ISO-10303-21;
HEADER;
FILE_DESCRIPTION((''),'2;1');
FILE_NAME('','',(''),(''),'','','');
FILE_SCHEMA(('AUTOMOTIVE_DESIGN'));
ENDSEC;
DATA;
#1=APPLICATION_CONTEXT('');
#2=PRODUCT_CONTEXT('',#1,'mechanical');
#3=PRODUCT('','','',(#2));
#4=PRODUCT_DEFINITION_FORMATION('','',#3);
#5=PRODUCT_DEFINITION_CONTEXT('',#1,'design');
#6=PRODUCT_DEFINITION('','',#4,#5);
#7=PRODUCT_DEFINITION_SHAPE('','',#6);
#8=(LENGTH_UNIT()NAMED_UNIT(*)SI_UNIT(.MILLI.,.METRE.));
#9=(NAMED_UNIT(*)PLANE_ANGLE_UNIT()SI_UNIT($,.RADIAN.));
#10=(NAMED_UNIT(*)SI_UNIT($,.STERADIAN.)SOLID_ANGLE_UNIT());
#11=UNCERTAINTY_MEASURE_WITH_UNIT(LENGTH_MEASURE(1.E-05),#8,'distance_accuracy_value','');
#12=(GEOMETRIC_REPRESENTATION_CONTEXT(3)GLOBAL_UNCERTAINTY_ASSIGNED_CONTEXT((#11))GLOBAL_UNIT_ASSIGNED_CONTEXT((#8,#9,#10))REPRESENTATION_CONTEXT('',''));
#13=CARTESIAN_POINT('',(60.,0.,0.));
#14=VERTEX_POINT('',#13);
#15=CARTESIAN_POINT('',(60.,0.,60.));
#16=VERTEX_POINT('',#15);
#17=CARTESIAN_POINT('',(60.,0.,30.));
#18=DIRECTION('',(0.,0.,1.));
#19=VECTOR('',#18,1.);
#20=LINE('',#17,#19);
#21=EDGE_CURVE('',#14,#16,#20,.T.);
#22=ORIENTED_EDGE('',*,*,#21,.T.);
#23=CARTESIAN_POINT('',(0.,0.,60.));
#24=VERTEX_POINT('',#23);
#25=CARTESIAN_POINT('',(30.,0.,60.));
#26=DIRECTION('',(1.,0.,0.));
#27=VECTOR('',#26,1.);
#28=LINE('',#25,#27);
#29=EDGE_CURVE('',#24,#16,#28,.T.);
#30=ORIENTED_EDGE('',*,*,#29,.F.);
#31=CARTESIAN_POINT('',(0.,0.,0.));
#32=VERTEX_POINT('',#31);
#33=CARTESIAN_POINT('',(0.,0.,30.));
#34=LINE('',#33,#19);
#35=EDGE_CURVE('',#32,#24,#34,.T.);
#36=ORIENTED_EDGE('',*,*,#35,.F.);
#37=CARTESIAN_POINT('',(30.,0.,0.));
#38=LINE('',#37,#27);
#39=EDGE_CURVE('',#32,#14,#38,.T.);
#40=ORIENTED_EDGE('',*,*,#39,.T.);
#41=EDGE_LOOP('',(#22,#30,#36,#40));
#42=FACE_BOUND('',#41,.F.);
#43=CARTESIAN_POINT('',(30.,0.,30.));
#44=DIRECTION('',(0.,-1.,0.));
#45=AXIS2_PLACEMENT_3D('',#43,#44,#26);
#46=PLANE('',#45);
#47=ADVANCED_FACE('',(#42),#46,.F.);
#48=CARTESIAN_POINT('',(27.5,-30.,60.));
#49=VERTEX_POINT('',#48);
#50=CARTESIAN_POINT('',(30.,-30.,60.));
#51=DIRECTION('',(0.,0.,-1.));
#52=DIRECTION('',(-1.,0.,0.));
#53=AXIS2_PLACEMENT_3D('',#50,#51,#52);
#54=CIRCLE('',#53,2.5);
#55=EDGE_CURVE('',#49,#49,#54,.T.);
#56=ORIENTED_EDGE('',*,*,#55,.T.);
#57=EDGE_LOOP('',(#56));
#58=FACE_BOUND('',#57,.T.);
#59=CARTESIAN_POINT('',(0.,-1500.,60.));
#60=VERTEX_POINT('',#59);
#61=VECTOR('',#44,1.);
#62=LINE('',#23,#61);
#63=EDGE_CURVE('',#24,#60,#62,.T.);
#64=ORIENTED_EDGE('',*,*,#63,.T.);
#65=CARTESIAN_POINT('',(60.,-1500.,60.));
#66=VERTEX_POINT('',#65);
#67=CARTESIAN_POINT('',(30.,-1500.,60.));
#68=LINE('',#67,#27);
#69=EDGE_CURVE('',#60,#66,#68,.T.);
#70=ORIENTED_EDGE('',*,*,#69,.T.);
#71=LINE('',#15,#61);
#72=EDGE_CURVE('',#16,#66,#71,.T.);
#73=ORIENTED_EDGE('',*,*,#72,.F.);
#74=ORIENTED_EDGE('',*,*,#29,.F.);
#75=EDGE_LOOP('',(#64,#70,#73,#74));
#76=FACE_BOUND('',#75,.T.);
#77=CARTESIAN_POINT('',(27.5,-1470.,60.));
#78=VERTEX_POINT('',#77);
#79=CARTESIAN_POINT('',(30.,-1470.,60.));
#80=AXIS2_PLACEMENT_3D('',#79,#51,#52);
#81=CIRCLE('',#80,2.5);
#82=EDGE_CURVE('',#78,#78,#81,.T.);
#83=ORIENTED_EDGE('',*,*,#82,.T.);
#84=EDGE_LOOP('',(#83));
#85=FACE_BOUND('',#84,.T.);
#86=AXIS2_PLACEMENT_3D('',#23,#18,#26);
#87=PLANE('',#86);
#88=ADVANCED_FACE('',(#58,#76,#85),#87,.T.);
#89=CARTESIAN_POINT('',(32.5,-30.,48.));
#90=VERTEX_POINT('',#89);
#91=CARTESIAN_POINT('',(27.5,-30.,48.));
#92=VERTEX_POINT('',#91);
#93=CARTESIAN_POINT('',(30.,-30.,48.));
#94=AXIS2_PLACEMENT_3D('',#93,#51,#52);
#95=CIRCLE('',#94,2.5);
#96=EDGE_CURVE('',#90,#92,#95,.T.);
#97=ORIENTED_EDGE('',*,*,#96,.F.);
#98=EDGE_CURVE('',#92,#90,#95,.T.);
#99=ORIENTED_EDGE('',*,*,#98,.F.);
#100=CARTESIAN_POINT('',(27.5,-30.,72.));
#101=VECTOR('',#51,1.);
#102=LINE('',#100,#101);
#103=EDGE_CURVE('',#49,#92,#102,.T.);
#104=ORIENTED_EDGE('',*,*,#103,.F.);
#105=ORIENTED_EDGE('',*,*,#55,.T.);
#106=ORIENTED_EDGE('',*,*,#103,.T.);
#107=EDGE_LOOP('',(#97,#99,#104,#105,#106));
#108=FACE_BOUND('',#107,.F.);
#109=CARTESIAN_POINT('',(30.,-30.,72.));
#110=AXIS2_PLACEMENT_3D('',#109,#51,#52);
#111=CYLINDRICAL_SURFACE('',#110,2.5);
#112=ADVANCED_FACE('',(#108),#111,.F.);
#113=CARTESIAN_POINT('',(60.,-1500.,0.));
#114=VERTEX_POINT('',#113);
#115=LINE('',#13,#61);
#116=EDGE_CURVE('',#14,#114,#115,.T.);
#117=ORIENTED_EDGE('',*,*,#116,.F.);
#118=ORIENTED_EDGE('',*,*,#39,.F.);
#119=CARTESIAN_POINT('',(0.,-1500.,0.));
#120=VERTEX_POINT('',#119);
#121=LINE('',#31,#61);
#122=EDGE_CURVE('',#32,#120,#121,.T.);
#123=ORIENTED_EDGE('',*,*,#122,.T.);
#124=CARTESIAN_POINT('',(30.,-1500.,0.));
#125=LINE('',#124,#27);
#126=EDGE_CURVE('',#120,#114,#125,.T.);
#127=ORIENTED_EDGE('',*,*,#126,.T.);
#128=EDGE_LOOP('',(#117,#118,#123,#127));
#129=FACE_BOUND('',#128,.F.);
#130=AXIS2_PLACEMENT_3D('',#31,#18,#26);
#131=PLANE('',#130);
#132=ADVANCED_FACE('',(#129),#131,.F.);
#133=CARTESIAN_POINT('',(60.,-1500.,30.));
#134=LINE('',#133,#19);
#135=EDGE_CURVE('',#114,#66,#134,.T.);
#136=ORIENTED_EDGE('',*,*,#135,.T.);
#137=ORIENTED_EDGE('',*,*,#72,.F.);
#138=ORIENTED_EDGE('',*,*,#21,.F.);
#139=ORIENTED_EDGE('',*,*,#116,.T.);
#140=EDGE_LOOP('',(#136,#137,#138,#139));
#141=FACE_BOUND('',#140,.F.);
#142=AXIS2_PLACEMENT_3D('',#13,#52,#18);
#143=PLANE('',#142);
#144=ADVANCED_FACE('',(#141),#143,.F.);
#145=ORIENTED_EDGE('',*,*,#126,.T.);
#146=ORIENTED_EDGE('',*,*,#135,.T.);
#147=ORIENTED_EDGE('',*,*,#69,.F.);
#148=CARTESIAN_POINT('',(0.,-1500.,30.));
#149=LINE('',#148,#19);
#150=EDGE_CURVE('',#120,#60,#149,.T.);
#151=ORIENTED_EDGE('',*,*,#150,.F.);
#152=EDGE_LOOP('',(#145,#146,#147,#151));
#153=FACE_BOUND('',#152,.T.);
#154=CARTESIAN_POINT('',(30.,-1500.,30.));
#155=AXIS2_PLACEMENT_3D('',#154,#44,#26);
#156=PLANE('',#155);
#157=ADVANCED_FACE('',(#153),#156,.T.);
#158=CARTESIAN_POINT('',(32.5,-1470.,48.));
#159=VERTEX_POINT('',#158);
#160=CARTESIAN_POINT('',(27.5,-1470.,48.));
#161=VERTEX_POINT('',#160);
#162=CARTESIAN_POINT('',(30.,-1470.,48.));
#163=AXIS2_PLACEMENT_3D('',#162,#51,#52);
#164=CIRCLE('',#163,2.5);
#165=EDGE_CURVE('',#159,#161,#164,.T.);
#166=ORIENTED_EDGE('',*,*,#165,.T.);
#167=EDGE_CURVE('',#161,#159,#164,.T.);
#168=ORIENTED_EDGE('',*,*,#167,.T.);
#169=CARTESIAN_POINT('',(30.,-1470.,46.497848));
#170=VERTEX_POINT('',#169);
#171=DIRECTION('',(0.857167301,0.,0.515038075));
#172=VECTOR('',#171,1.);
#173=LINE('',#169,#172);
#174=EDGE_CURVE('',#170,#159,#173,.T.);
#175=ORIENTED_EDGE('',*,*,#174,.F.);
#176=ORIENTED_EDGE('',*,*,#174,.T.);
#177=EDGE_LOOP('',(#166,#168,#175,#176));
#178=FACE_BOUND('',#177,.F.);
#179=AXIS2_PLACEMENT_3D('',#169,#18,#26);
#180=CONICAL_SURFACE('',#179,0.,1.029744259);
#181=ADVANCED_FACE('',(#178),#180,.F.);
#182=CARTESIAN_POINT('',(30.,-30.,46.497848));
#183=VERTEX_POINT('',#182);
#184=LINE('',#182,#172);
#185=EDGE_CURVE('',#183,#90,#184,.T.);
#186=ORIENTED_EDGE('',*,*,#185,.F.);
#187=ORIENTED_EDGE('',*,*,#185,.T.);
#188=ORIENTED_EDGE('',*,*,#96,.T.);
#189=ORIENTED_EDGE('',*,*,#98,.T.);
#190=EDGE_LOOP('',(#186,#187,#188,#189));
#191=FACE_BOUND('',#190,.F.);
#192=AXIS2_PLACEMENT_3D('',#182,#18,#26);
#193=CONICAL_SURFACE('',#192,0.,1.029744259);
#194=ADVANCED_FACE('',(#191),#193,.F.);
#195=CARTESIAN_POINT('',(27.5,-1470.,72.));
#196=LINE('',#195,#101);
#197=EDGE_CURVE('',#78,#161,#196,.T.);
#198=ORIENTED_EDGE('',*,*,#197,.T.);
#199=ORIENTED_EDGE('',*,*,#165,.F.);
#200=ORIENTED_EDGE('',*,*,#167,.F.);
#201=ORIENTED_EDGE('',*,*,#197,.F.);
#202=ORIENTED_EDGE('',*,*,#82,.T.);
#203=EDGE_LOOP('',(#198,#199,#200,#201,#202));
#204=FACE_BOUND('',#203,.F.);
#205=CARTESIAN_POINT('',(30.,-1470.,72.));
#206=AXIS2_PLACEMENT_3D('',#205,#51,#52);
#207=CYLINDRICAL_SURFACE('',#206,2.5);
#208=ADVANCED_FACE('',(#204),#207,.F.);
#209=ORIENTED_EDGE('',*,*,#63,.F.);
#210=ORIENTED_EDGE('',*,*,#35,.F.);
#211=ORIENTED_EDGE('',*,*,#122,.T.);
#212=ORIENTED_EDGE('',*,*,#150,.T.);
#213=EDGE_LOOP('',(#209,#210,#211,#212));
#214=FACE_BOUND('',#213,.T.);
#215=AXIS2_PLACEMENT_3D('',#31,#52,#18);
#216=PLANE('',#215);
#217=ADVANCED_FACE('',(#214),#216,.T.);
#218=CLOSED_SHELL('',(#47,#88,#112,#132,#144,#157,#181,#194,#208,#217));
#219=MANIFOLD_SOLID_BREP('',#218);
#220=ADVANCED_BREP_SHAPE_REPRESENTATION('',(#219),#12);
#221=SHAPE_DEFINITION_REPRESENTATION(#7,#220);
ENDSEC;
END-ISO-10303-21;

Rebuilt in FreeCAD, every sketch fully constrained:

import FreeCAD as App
import Part
import Sketcher
from FreeCAD import Vector
Q = App.Units.Quantity


def add_polygon(sketch, points):
    """Adds a closed chain of lines whose ends are joined by coincident constraints."""
    first, n = sketch.GeometryCount, len(points)
    for a, b in zip(points, points[1:] + points[:1]):
        sketch.addGeometry(Part.LineSegment(App.Vector(*a, 0), App.Vector(*b, 0)), False)
    for i in range(n):
        sketch.addConstraint(Sketcher.Constraint("Coincident", first + i, 2, first + (i + 1) % n, 1))

doc = App.newDocument("Part")
body = doc.addObject("PartDesign::Body", "Body")

sketch1 = body.newObject("Sketcher::SketchObject", "Sketch")
sketch1.AttachmentSupport = (doc.getObject("XZ_Plane"), [""])
sketch1.MapMode = "FlatFace"
add_polygon(sketch1, [(0, 60), (0, 0), (60, 0), (60, 60)])
sketch1.addConstraint(Sketcher.Constraint("Vertical", 0))
sketch1.addConstraint(Sketcher.Constraint("Horizontal", 1))
sketch1.addConstraint(Sketcher.Constraint("Vertical", 2))
sketch1.addConstraint(Sketcher.Constraint("Horizontal", 3))
sketch1.addConstraint(Sketcher.Constraint("Coincident", 0, 2, -1, 1))
sketch1.addConstraint(Sketcher.Constraint("Equal", 3, 0))
sketch1.addConstraint(Sketcher.Constraint("DistanceX", 1, 1, 1, 2, Q("60 mm")))
pad1 = body.newObject("PartDesign::Pad", "Pad")
pad1.Profile = sketch1
pad1.Length = 1500

sketch2 = body.newObject("Sketcher::SketchObject", "Sketch001")
sketch2.AttachmentSupport = (doc.getObject("XY_Plane"), [""])
sketch2.MapMode = "FlatFace"
sketch2.AttachmentOffset = App.Placement(Vector(0, 0, 60), App.Rotation())
sketch2.addGeometry(Part.Circle(Vector(30, -1470, 0), Vector(0, 0, 1), 2.5), False)
sketch2.addGeometry(Part.Circle(Vector(30, -30, 0), Vector(0, 0, 1), 2.5), False)
sketch2.addConstraint(Sketcher.Constraint("Equal", 0, 1))
sketch2.addConstraint(Sketcher.Constraint("Vertical", 0, 3, 1, 3))
sketch2.addConstraint(Sketcher.Constraint("Diameter", 0, Q("5 mm")))
sketch2.addConstraint(Sketcher.Constraint("DistanceX", -1, 1, 0, 3, Q("30 mm")))
sketch2.addConstraint(Sketcher.Constraint("DistanceY", 0, 3, -1, 1, Q("1470 mm")))
sketch2.addConstraint(Sketcher.Constraint("DistanceY", 1, 3, -1, 1, Q("30 mm")))
doc.recompute()
hole = body.newObject("PartDesign::Hole", "Hole")
hole.Profile = sketch2
hole.ThreadType = "None"
hole.Diameter = 5
hole.DepthType = "Dimension"
hole.Depth = 12
hole.DrillPoint = "Angled"
hole.DrillPointAngle = 118

doc.recompute()
